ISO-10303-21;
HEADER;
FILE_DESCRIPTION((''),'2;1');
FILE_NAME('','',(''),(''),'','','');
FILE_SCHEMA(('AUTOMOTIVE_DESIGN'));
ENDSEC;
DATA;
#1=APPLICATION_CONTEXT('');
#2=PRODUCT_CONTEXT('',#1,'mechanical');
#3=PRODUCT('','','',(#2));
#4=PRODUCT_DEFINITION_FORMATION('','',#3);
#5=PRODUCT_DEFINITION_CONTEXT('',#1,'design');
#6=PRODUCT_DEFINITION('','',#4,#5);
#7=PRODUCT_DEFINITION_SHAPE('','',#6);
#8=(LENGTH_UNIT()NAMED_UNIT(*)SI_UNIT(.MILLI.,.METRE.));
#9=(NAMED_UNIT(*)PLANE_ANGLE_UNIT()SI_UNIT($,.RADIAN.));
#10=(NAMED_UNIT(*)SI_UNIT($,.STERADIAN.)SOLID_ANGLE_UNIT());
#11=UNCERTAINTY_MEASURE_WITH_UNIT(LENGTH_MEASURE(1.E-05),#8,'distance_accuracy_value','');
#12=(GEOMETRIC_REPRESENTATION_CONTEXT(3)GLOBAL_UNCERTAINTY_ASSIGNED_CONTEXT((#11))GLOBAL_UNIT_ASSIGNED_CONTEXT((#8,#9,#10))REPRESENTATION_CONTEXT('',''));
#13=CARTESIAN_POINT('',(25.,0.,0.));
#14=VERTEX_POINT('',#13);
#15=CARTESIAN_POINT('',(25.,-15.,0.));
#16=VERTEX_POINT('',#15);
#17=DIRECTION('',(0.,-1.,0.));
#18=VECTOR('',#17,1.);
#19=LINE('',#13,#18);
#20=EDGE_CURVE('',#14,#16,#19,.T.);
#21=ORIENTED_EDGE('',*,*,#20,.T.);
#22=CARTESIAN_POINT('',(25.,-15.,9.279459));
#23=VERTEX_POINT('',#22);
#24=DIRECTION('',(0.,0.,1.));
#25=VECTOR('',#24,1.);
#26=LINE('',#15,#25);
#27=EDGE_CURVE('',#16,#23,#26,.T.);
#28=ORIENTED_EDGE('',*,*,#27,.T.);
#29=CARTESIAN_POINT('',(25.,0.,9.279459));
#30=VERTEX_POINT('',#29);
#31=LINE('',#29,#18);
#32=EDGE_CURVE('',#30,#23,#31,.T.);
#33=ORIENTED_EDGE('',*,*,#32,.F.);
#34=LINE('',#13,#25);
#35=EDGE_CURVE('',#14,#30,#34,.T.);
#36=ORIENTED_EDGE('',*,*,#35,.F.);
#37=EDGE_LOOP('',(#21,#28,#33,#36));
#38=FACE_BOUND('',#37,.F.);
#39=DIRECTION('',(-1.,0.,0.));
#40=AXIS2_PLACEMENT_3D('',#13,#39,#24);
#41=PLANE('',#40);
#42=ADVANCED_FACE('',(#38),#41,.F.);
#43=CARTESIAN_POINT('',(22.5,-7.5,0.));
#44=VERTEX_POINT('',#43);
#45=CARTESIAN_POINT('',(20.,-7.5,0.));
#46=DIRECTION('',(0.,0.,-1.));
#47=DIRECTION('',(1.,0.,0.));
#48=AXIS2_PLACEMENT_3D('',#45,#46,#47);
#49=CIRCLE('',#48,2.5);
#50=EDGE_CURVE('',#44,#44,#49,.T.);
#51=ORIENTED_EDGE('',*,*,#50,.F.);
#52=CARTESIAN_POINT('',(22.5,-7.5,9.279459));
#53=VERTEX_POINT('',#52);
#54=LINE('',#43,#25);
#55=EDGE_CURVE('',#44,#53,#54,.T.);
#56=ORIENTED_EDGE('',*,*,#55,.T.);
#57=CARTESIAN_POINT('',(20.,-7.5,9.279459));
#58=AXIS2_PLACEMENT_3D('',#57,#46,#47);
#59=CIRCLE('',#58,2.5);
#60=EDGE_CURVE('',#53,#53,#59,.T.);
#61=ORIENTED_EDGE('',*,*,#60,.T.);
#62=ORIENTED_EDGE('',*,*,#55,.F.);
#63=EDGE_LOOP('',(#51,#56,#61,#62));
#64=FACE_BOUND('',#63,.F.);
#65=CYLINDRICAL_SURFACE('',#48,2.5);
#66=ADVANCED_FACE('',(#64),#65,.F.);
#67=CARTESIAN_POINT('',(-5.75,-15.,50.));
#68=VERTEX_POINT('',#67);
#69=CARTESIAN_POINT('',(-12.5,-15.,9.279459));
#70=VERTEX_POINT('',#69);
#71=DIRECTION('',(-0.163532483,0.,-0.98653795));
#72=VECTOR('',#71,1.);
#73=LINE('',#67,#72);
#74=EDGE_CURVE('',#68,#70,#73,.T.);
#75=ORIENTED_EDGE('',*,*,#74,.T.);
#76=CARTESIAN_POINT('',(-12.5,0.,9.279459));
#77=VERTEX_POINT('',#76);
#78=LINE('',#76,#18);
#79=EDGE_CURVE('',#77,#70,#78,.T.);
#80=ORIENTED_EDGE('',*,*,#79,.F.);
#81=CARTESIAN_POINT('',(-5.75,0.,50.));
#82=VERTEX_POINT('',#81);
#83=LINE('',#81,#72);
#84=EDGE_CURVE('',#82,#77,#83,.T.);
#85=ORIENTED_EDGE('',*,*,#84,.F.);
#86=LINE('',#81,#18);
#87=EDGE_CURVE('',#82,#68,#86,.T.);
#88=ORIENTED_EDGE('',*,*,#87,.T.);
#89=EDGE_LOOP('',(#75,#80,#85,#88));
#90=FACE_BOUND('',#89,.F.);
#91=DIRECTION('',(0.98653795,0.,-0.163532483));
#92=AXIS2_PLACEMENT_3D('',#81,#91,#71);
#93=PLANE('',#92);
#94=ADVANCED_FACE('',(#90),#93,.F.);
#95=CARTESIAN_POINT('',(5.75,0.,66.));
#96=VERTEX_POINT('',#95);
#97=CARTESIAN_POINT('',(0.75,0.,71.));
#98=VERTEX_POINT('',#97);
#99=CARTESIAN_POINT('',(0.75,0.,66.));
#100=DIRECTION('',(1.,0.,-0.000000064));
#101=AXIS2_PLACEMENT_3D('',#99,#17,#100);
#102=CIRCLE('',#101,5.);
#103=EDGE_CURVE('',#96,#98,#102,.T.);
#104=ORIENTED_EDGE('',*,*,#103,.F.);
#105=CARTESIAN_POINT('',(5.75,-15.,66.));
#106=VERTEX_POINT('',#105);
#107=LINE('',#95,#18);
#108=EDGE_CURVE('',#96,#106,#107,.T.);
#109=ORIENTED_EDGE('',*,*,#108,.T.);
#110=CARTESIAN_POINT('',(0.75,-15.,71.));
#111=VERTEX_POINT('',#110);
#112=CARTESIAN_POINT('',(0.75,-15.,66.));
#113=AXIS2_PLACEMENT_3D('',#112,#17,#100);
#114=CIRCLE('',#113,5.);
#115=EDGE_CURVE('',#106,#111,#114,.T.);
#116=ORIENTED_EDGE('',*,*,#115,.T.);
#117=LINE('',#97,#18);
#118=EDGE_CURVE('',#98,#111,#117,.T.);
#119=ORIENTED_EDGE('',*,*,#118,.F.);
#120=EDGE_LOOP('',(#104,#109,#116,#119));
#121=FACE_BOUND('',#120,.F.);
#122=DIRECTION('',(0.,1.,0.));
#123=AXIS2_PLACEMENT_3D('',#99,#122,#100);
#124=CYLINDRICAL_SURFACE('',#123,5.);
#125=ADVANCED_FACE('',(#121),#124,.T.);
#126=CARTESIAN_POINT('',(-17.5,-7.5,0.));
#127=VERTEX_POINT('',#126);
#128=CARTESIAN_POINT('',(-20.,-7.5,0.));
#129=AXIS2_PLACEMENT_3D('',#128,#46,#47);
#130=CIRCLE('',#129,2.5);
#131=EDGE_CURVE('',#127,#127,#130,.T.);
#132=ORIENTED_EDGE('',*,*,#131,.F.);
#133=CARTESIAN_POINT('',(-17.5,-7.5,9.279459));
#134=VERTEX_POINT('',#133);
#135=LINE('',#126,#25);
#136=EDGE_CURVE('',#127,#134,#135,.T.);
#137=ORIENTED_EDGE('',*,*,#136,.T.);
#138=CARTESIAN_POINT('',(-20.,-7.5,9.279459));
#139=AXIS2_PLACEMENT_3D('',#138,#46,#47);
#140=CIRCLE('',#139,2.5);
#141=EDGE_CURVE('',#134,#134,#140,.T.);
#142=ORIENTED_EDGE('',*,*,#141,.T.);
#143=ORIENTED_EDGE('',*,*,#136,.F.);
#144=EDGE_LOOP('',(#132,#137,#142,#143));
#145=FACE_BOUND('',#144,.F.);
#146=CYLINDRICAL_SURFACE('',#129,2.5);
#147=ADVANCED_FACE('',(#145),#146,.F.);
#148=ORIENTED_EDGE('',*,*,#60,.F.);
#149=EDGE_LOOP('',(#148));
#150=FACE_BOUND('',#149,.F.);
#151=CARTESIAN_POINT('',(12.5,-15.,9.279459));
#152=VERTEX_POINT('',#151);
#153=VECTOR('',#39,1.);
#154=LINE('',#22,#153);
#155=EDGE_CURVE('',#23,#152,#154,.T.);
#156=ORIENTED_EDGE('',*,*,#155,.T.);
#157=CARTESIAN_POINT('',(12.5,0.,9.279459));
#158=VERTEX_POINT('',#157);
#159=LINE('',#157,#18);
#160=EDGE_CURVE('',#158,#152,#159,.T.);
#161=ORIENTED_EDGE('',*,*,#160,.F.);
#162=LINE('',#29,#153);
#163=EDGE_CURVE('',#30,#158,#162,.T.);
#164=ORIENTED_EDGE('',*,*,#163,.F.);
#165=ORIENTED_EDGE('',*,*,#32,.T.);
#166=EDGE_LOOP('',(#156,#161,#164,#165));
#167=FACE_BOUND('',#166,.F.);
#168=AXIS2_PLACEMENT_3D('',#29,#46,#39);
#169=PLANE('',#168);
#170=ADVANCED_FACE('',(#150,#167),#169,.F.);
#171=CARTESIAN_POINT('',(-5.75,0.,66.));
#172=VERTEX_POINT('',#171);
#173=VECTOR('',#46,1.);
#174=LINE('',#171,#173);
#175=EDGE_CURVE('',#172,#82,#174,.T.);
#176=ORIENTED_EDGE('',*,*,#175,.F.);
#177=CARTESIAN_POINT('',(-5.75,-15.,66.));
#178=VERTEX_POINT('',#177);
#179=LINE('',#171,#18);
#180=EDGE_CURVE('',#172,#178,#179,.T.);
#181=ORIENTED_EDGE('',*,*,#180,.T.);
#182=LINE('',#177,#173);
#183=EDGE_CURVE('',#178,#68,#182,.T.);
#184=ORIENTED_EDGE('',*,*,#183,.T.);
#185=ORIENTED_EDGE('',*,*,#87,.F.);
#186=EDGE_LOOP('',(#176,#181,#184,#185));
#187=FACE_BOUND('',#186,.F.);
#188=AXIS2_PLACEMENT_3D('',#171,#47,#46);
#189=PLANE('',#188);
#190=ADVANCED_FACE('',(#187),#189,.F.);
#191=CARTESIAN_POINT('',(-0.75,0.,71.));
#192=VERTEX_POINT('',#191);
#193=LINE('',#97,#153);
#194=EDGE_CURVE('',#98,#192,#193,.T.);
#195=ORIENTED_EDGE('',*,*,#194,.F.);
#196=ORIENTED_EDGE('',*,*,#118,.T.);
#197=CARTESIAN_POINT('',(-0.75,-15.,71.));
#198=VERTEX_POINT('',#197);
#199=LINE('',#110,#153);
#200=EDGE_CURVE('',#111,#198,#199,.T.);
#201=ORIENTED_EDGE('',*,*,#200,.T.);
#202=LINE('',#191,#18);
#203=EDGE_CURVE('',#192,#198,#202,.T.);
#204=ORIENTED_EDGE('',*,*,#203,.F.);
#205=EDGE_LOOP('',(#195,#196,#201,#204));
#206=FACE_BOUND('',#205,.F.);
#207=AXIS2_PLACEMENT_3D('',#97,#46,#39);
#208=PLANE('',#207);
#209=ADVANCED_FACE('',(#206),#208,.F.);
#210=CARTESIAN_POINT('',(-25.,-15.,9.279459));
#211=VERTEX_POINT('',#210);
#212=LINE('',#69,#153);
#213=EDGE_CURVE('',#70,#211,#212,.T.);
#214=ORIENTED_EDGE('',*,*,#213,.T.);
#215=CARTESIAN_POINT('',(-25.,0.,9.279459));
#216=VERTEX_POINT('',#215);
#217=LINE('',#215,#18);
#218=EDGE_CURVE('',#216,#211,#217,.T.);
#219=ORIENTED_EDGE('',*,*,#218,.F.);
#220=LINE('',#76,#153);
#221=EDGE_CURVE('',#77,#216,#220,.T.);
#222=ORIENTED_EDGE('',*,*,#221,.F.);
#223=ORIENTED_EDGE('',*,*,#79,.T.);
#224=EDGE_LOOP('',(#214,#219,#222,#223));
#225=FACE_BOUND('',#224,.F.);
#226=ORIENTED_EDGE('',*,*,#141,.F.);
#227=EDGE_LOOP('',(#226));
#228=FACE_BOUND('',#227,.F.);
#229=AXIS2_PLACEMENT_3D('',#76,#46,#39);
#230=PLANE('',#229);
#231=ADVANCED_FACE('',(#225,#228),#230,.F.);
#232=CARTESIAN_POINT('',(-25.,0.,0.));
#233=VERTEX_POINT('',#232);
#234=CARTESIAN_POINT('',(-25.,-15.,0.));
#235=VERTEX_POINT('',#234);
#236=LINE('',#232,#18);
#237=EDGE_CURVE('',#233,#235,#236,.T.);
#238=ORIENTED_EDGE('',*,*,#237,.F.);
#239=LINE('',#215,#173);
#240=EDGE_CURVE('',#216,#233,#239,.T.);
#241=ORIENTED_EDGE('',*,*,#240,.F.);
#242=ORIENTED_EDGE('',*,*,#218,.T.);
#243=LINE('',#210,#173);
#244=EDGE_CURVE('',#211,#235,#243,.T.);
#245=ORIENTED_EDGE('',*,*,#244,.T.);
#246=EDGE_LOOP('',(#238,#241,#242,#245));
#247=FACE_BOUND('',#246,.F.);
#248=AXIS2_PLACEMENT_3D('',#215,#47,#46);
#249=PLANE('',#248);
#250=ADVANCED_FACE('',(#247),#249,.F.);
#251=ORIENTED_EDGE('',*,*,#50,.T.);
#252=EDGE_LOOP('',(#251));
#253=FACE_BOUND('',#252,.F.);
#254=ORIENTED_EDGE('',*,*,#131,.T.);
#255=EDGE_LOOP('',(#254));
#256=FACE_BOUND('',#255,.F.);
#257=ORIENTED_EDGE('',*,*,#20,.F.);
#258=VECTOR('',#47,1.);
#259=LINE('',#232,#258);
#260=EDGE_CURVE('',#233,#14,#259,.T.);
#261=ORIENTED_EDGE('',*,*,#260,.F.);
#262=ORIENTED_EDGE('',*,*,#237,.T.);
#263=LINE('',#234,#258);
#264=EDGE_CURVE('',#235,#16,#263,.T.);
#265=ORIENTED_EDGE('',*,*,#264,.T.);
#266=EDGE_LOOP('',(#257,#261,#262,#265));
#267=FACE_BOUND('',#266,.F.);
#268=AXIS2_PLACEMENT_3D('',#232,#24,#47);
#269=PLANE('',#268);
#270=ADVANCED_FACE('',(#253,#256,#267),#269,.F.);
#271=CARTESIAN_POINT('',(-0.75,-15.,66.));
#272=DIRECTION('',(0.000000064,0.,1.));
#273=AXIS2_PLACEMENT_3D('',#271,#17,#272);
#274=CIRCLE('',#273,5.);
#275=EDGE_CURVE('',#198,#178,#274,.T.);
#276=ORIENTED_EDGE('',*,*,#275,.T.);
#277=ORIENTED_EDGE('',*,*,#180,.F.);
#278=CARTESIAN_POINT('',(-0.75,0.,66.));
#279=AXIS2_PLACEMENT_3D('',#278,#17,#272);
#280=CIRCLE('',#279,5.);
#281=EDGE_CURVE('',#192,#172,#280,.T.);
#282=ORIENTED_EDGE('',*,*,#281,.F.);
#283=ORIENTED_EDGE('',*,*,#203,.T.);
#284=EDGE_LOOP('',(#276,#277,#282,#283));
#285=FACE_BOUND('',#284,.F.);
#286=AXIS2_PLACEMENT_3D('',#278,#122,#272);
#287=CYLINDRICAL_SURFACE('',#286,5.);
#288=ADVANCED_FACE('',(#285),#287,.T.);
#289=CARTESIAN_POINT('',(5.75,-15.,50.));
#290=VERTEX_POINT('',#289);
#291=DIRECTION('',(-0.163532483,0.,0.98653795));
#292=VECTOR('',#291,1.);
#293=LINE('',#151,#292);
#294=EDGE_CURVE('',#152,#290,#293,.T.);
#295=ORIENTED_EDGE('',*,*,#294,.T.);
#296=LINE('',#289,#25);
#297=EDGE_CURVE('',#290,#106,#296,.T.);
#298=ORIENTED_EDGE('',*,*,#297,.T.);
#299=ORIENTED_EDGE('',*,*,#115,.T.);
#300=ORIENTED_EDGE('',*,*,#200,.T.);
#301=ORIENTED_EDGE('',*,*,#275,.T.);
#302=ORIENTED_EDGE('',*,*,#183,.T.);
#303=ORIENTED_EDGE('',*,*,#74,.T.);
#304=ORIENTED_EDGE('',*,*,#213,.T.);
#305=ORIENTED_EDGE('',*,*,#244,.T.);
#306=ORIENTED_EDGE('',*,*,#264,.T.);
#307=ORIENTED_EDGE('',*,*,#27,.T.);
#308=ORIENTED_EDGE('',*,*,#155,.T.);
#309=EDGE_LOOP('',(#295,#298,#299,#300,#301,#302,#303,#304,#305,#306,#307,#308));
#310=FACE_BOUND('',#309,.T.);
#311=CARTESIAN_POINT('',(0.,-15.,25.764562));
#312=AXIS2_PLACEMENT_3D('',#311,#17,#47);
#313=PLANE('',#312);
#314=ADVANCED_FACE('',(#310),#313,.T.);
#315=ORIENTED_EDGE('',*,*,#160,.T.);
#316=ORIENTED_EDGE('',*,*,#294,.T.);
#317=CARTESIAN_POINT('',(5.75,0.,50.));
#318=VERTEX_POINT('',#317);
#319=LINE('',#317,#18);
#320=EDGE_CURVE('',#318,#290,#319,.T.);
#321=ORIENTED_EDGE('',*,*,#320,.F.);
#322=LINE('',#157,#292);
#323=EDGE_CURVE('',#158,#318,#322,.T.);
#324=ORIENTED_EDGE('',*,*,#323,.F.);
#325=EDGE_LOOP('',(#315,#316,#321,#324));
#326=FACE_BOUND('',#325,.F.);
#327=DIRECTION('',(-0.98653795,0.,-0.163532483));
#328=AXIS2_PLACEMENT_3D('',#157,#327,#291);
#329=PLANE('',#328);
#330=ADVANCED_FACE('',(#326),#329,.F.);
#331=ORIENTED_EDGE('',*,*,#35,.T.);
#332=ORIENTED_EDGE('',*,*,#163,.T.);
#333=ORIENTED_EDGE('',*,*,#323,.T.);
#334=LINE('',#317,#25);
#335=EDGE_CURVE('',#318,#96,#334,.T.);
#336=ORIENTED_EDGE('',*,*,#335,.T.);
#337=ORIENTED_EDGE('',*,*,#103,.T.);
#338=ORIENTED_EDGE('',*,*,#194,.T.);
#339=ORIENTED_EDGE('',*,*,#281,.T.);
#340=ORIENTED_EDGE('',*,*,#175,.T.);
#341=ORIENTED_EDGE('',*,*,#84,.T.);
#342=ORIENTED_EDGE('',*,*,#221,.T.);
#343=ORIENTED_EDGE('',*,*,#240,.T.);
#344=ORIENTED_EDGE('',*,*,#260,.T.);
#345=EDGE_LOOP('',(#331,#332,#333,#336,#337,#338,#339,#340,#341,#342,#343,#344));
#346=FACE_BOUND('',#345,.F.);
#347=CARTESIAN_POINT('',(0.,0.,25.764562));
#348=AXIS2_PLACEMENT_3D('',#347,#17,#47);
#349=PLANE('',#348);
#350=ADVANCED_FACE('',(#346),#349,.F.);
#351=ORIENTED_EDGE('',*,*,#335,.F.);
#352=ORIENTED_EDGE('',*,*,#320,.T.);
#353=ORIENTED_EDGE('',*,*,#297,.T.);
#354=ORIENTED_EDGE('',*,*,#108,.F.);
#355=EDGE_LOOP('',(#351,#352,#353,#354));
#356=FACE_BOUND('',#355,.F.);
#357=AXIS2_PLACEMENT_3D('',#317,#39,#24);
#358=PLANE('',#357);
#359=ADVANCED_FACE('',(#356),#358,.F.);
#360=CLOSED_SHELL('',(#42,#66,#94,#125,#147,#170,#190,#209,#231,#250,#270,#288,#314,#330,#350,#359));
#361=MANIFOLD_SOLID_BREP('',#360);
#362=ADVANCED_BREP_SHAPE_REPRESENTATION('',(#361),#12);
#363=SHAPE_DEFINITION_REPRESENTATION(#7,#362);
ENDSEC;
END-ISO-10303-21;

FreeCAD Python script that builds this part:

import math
import FreeCAD as App
import Part
import Sketcher

doc = App.newDocument("Part")
params = doc.addObject("Spreadsheet::Sheet", "Params")
for row, (alias, value) in enumerate([
    ("sketch1_radius", "5 mm"),
    ("sketch1_width", "50 mm"),
    ("sketch1_height", "16 mm"),
    ("sketch1_width2", "1.5 mm"),
    ("sketch1_width3", "12.5 mm"),
    ("pad1_length", "15 mm"),
    ("sketch2_diameter", "5 mm"),
    ("pocket1_length", "25 mm"),
], start=1):
    params.set(f"A{row}", alias)
    params.set(f"B{row}", "=" + value)
    params.setAlias(f"B{row}", alias)

body = doc.addObject("PartDesign::Body", "Body")

# Sketch on XZ plane
sketch1 = doc.addObject("Sketcher::SketchObject", "Sketch")
body.addObject(sketch1)
sketch1.AttachmentSupport = (doc.XZ_Plane, [""])
sketch1.MapMode = "FlatFace"
sketch1.addGeometry([
    Part.LineSegment(App.Vector(0.75, 71, 0), App.Vector(-0.75, 71, 0)),  # 0
    Part.ArcOfCircle(Part.Circle(App.Vector(-0.75, 66, 0), App.Vector(0, 0, 1), 5), math.radians(89.999996), math.radians(180.000004)),  # 1
    Part.LineSegment(App.Vector(-5.75, 66, 0), App.Vector(-5.75, 50, 0)),  # 2
    Part.LineSegment(App.Vector(-5.75, 50, 0), App.Vector(-12.5, 9.279459, 0)),  # 3
    Part.LineSegment(App.Vector(-12.5, 9.279459, 0), App.Vector(-25, 9.279459, 0)),  # 4
    Part.LineSegment(App.Vector(-25, 9.279459, 0), App.Vector(-25, 0, 0)),  # 5
    Part.LineSegment(App.Vector(-25, 0, 0), App.Vector(25, 0, 0)),  # 6
    Part.LineSegment(App.Vector(25, 0, 0), App.Vector(25, 9.279459, 0)),  # 7
    Part.LineSegment(App.Vector(25, 9.279459, 0), App.Vector(12.5, 9.279459, 0)),  # 8
    Part.LineSegment(App.Vector(12.5, 9.279459, 0), App.Vector(5.75, 50, 0)),  # 9
    Part.LineSegment(App.Vector(5.75, 50, 0), App.Vector(5.75, 66, 0)),  # 10
    Part.ArcOfCircle(Part.Circle(App.Vector(0.75, 66, 0), App.Vector(0, 0, 1), 5), math.radians(-0.000004), math.radians(90.000004)),  # 11
], False)
sketch1.addConstraint([
    Sketcher.Constraint("Tangent", 0, 2, 1, 1),
    Sketcher.Constraint("Tangent", 1, 2, 2, 1),
    Sketcher.Constraint("Coincident", 2, 2, 3, 1),
    Sketcher.Constraint("Coincident", 3, 2, 4, 1),
    Sketcher.Constraint("Coincident", 4, 2, 5, 1),
    Sketcher.Constraint("Coincident", 5, 2, 6, 1),
    Sketcher.Constraint("Coincident", 6, 2, 7, 1),
    Sketcher.Constraint("Coincident", 7, 2, 8, 1),
    Sketcher.Constraint("Coincident", 8, 2, 9, 1),
    Sketcher.Constraint("Coincident", 9, 2, 10, 1),
    Sketcher.Constraint("Tangent", 10, 2, 11, 1),
    Sketcher.Constraint("Tangent", 11, 2, 0, 1),
    Sketcher.Constraint("Horizontal", 0),
    Sketcher.Constraint("Vertical", 2),
    Sketcher.Constraint("Horizontal", 4),
    Sketcher.Constraint("Vertical", 5),
    Sketcher.Constraint("Horizontal", 6),
    Sketcher.Constraint("Vertical", 7),
    Sketcher.Constraint("Horizontal", 8),
    Sketcher.Constraint("Vertical", 10),
    Sketcher.Constraint("Equal", 1, 11),
    Sketcher.Constraint("Symmetric", 5, 2, 6, 2, -1, 1),
    Sketcher.Constraint("Symmetric", 3, 2, 8, 2, -2),
    Sketcher.Constraint("Symmetric", 2, 2, 9, 2, -2),
    Sketcher.Constraint("Radius", 1, 5.0),
    Sketcher.Constraint("DistanceX", 6, 1, 6, 2, 50.0),
    Sketcher.Constraint("DistanceY", 2, 2, 2, 1, 16.0),
    Sketcher.Constraint("DistanceX", 0, 2, 0, 1, 1.5),
    Sketcher.Constraint("DistanceX", 4, 2, 4, 1, 12.5),
    Sketcher.Constraint("DistanceY", -1, 1, 1, 3, 66.0),
    Sketcher.Constraint("DistanceY", 5, 2, 5, 1, 9.279459),
])
sketch1.setExpression("Constraints[24]", "Params.sketch1_radius")
sketch1.setExpression("Constraints[25]", "Params.sketch1_width")
sketch1.setExpression("Constraints[26]", "Params.sketch1_height")
sketch1.setExpression("Constraints[27]", "Params.sketch1_width2")
sketch1.setExpression("Constraints[28]", "Params.sketch1_width3")
pad1 = doc.addObject("PartDesign::Pad", "Pad")
body.addObject(pad1)
pad1.Profile = sketch1
pad1.setExpression("Length", "Params.pad1_length")

# Sketch on XY plane
sketch2 = doc.addObject("Sketcher::SketchObject", "Sketch001")
body.addObject(sketch2)
sketch2.AttachmentSupport = (doc.XY_Plane, [""])
sketch2.MapMode = "FlatFace"
sketch2.addGeometry([
    Part.Circle(App.Vector(-20, -7.5, 0), App.Vector(0, 0, 1), 2.5),
    Part.Circle(App.Vector(20, -7.5, 0), App.Vector(0, 0, 1), 2.5),
], False)
sketch2.addConstraint([
    Sketcher.Constraint("Equal", 0, 1),
    Sketcher.Constraint("Symmetric", 0, 3, 1, 3, -2),
    Sketcher.Constraint("Diameter", 0, 5.0),
    Sketcher.Constraint("DistanceX", 0, 3, -1, 1, 20.0),
    Sketcher.Constraint("DistanceY", 0, 3, -1, 1, 7.5),
])
sketch2.setExpression("Constraints[2]", "Params.sketch2_diameter")
pocket1 = doc.addObject("PartDesign::Pocket", "Pocket")
body.addObject(pocket1)
pocket1.Profile = sketch2
pocket1.setExpression("Length", "Params.pocket1_length")
pocket1.Reversed = True

doc.recompute()
